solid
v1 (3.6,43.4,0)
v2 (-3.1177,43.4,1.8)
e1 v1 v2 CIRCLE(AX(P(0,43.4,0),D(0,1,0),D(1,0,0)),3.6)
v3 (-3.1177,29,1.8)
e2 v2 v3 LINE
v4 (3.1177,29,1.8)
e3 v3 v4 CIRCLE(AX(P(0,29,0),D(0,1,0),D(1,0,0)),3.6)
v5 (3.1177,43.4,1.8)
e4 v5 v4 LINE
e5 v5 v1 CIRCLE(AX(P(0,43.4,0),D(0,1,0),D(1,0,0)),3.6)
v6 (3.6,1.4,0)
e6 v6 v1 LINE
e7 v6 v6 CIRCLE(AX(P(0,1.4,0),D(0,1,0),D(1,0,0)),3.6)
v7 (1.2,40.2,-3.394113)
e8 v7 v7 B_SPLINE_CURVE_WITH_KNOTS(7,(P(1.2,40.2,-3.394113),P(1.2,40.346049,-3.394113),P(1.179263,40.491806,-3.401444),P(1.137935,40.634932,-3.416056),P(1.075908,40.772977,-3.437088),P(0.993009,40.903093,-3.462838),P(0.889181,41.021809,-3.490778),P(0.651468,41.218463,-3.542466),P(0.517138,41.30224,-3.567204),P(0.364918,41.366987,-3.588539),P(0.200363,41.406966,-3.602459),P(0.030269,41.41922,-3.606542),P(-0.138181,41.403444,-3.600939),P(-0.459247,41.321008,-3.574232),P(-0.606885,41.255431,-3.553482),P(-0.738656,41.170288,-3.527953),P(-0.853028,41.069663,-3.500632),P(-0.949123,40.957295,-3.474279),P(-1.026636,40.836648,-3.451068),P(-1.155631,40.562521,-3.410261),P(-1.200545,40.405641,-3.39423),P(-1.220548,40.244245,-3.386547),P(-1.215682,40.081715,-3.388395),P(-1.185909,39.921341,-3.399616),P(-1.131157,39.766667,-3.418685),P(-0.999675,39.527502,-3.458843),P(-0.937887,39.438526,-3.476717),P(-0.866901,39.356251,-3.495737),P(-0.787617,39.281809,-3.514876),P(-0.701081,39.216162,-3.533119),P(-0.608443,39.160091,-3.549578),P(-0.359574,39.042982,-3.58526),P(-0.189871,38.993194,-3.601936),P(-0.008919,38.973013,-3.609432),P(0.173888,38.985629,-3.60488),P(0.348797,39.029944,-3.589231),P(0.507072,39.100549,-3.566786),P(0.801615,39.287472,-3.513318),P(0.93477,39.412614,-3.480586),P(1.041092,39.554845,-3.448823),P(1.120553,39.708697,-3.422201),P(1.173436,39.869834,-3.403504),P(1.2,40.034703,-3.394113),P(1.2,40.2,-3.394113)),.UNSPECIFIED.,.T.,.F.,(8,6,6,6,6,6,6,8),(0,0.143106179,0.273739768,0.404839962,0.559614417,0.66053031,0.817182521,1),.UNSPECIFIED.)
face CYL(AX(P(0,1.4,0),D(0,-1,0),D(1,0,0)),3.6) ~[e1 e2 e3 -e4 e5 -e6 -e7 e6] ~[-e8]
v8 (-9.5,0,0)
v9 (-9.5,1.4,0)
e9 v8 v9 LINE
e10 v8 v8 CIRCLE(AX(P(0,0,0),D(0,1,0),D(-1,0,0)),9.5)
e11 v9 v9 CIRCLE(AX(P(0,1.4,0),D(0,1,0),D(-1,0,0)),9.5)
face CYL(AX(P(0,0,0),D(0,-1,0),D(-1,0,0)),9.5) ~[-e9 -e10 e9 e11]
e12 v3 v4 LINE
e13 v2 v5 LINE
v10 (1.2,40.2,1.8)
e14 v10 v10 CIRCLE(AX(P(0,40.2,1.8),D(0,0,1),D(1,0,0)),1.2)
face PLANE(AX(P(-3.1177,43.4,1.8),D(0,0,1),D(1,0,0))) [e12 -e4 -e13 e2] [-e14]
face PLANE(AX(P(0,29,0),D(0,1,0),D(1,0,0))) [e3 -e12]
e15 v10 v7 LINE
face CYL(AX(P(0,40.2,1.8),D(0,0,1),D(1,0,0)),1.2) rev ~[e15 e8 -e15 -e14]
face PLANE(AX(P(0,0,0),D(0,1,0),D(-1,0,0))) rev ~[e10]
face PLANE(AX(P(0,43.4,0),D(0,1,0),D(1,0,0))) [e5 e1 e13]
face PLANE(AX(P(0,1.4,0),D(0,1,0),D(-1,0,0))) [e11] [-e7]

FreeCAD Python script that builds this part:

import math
import FreeCAD as App
import Part
import Sketcher
from FreeCAD import Vector
Q = App.Units.Quantity

doc = App.newDocument("Part")
params = doc.addObject("Spreadsheet::Sheet", "Params")
for row, (alias, value) in enumerate([
    ("sketch1_diameter", "19 mm"),
    ("pad1_length", "1.4 mm"),
    ("sketch2_diameter", "7.2 mm"),
    ("pad2_length", "42 mm"),
    ("sketch3_radius", "3.6 mm"),
    ("pocket1_length", "14.4 mm"),
    ("sketch4_diameter", "2.4 mm"),
], start=1):
    params.set(f"A{row}", alias)
    params.set(f"B{row}", "=" + value)
    params.setAlias(f"B{row}", alias)

body = doc.addObject("PartDesign::Body", "Body")

sketch1 = body.newObject("Sketcher::SketchObject", "Sketch")
sketch1.AttachmentSupport = (doc.getObject("XZ_Plane"), [""])
sketch1.MapMode = "FlatFace"
sketch1.addGeometry(Part.Circle(Vector(0, 0, 0), Vector(0, 0, 1), 10), False)
sketch1.addConstraint([
    Sketcher.Constraint("Coincident", 0, 3, -1, 1),
    Sketcher.Constraint("Diameter", 0, Q("19 mm")),
])
sketch1.setExpression("Constraints[1]", "Params.sketch1_diameter")
pad1 = body.newObject("PartDesign::Pad", "Pad")
pad1.Profile = sketch1
pad1.setExpression("Length", "Params.pad1_length")
pad1.Reversed = True

sketch2 = body.newObject("Sketcher::SketchObject", "Sketch001")
sketch2.AttachmentSupport = (doc.getObject("XZ_Plane"), [""])
sketch2.MapMode = "FlatFace"
sketch2.AttachmentOffset = App.Placement(Vector(0, 0, -1.4), App.Rotation())
sketch2.addGeometry(Part.Circle(Vector(0, 0, 0), Vector(0, 0, 1), 3.6), False)
sketch2.addConstraint([
    Sketcher.Constraint("Coincident", 0, 3, -1, 1),
    Sketcher.Constraint("Diameter", 0, Q("7.2 mm")),
])
sketch2.setExpression("Constraints[1]", "Params.sketch2_diameter")
pad2 = body.newObject("PartDesign::Pad", "Pad001")
pad2.Profile = sketch2
pad2.setExpression("Length", "Params.pad2_length")
pad2.Reversed = True

sketch3 = body.newObject("Sketcher::SketchObject", "Sketch002")
sketch3.AttachmentSupport = (doc.getObject("XZ_Plane"), [""])
sketch3.MapMode = "FlatFace"
sketch3.AttachmentOffset = App.Placement(Vector(0, 0, -43.4), App.Rotation())
sketch3.addGeometry([
    Part.LineSegment(Vector(3.1, 1.8, 0), Vector(-3.1, 1.8, 0)),
    Part.ArcOfCircle(Part.Circle(Vector(0, 0, 0), Vector(0, 0, 1), 3.6), math.radians(30), math.radians(150)),
], False)
sketch3.addConstraint([
    Sketcher.Constraint("Coincident", 0, 1, 1, 1),
    Sketcher.Constraint("Coincident", 1, 2, 0, 2),
    Sketcher.Constraint("Horizontal", 0),
    Sketcher.Constraint("Coincident", 1, 3, -1, 1),
    Sketcher.Constraint("DistanceY", -1, 1, 0, 1, Q("1.8 mm")),
    Sketcher.Constraint("Radius", 1, Q("3.6 mm")),
])
sketch3.setExpression("Constraints[5]", "Params.sketch3_radius")
pocket1 = body.newObject("PartDesign::Pocket", "Pocket")
pocket1.Profile = sketch3
pocket1.setExpression("Length", "Params.pocket1_length")
pocket1.Reversed = True

sketch4 = body.newObject("Sketcher::SketchObject", "Sketch003")
sketch4.AttachmentSupport = (doc.getObject("XY_Plane"), [""])
sketch4.MapMode = "FlatFace"
sketch4.AttachmentOffset = App.Placement(Vector(0, 0, 1.8), App.Rotation())
sketch4.addGeometry(Part.Circle(Vector(0, 40.2, 0), Vector(0, 0, 1), 1.2), False)
sketch4.addConstraint([
    Sketcher.Constraint("PointOnObject", 0, 3, -2),
    Sketcher.Constraint("Diameter", 0, Q("2.4 mm")),
    Sketcher.Constraint("DistanceY", -1, 1, 0, 3, Q("40.2 mm")),
])
sketch4.setExpression("Constraints[1]", "Params.sketch4_diameter")
pocket2 = body.newObject("PartDesign::Pocket", "Pocket001")
pocket2.Profile = sketch4
pocket2.Type = "ThroughAll"

doc.recompute()
